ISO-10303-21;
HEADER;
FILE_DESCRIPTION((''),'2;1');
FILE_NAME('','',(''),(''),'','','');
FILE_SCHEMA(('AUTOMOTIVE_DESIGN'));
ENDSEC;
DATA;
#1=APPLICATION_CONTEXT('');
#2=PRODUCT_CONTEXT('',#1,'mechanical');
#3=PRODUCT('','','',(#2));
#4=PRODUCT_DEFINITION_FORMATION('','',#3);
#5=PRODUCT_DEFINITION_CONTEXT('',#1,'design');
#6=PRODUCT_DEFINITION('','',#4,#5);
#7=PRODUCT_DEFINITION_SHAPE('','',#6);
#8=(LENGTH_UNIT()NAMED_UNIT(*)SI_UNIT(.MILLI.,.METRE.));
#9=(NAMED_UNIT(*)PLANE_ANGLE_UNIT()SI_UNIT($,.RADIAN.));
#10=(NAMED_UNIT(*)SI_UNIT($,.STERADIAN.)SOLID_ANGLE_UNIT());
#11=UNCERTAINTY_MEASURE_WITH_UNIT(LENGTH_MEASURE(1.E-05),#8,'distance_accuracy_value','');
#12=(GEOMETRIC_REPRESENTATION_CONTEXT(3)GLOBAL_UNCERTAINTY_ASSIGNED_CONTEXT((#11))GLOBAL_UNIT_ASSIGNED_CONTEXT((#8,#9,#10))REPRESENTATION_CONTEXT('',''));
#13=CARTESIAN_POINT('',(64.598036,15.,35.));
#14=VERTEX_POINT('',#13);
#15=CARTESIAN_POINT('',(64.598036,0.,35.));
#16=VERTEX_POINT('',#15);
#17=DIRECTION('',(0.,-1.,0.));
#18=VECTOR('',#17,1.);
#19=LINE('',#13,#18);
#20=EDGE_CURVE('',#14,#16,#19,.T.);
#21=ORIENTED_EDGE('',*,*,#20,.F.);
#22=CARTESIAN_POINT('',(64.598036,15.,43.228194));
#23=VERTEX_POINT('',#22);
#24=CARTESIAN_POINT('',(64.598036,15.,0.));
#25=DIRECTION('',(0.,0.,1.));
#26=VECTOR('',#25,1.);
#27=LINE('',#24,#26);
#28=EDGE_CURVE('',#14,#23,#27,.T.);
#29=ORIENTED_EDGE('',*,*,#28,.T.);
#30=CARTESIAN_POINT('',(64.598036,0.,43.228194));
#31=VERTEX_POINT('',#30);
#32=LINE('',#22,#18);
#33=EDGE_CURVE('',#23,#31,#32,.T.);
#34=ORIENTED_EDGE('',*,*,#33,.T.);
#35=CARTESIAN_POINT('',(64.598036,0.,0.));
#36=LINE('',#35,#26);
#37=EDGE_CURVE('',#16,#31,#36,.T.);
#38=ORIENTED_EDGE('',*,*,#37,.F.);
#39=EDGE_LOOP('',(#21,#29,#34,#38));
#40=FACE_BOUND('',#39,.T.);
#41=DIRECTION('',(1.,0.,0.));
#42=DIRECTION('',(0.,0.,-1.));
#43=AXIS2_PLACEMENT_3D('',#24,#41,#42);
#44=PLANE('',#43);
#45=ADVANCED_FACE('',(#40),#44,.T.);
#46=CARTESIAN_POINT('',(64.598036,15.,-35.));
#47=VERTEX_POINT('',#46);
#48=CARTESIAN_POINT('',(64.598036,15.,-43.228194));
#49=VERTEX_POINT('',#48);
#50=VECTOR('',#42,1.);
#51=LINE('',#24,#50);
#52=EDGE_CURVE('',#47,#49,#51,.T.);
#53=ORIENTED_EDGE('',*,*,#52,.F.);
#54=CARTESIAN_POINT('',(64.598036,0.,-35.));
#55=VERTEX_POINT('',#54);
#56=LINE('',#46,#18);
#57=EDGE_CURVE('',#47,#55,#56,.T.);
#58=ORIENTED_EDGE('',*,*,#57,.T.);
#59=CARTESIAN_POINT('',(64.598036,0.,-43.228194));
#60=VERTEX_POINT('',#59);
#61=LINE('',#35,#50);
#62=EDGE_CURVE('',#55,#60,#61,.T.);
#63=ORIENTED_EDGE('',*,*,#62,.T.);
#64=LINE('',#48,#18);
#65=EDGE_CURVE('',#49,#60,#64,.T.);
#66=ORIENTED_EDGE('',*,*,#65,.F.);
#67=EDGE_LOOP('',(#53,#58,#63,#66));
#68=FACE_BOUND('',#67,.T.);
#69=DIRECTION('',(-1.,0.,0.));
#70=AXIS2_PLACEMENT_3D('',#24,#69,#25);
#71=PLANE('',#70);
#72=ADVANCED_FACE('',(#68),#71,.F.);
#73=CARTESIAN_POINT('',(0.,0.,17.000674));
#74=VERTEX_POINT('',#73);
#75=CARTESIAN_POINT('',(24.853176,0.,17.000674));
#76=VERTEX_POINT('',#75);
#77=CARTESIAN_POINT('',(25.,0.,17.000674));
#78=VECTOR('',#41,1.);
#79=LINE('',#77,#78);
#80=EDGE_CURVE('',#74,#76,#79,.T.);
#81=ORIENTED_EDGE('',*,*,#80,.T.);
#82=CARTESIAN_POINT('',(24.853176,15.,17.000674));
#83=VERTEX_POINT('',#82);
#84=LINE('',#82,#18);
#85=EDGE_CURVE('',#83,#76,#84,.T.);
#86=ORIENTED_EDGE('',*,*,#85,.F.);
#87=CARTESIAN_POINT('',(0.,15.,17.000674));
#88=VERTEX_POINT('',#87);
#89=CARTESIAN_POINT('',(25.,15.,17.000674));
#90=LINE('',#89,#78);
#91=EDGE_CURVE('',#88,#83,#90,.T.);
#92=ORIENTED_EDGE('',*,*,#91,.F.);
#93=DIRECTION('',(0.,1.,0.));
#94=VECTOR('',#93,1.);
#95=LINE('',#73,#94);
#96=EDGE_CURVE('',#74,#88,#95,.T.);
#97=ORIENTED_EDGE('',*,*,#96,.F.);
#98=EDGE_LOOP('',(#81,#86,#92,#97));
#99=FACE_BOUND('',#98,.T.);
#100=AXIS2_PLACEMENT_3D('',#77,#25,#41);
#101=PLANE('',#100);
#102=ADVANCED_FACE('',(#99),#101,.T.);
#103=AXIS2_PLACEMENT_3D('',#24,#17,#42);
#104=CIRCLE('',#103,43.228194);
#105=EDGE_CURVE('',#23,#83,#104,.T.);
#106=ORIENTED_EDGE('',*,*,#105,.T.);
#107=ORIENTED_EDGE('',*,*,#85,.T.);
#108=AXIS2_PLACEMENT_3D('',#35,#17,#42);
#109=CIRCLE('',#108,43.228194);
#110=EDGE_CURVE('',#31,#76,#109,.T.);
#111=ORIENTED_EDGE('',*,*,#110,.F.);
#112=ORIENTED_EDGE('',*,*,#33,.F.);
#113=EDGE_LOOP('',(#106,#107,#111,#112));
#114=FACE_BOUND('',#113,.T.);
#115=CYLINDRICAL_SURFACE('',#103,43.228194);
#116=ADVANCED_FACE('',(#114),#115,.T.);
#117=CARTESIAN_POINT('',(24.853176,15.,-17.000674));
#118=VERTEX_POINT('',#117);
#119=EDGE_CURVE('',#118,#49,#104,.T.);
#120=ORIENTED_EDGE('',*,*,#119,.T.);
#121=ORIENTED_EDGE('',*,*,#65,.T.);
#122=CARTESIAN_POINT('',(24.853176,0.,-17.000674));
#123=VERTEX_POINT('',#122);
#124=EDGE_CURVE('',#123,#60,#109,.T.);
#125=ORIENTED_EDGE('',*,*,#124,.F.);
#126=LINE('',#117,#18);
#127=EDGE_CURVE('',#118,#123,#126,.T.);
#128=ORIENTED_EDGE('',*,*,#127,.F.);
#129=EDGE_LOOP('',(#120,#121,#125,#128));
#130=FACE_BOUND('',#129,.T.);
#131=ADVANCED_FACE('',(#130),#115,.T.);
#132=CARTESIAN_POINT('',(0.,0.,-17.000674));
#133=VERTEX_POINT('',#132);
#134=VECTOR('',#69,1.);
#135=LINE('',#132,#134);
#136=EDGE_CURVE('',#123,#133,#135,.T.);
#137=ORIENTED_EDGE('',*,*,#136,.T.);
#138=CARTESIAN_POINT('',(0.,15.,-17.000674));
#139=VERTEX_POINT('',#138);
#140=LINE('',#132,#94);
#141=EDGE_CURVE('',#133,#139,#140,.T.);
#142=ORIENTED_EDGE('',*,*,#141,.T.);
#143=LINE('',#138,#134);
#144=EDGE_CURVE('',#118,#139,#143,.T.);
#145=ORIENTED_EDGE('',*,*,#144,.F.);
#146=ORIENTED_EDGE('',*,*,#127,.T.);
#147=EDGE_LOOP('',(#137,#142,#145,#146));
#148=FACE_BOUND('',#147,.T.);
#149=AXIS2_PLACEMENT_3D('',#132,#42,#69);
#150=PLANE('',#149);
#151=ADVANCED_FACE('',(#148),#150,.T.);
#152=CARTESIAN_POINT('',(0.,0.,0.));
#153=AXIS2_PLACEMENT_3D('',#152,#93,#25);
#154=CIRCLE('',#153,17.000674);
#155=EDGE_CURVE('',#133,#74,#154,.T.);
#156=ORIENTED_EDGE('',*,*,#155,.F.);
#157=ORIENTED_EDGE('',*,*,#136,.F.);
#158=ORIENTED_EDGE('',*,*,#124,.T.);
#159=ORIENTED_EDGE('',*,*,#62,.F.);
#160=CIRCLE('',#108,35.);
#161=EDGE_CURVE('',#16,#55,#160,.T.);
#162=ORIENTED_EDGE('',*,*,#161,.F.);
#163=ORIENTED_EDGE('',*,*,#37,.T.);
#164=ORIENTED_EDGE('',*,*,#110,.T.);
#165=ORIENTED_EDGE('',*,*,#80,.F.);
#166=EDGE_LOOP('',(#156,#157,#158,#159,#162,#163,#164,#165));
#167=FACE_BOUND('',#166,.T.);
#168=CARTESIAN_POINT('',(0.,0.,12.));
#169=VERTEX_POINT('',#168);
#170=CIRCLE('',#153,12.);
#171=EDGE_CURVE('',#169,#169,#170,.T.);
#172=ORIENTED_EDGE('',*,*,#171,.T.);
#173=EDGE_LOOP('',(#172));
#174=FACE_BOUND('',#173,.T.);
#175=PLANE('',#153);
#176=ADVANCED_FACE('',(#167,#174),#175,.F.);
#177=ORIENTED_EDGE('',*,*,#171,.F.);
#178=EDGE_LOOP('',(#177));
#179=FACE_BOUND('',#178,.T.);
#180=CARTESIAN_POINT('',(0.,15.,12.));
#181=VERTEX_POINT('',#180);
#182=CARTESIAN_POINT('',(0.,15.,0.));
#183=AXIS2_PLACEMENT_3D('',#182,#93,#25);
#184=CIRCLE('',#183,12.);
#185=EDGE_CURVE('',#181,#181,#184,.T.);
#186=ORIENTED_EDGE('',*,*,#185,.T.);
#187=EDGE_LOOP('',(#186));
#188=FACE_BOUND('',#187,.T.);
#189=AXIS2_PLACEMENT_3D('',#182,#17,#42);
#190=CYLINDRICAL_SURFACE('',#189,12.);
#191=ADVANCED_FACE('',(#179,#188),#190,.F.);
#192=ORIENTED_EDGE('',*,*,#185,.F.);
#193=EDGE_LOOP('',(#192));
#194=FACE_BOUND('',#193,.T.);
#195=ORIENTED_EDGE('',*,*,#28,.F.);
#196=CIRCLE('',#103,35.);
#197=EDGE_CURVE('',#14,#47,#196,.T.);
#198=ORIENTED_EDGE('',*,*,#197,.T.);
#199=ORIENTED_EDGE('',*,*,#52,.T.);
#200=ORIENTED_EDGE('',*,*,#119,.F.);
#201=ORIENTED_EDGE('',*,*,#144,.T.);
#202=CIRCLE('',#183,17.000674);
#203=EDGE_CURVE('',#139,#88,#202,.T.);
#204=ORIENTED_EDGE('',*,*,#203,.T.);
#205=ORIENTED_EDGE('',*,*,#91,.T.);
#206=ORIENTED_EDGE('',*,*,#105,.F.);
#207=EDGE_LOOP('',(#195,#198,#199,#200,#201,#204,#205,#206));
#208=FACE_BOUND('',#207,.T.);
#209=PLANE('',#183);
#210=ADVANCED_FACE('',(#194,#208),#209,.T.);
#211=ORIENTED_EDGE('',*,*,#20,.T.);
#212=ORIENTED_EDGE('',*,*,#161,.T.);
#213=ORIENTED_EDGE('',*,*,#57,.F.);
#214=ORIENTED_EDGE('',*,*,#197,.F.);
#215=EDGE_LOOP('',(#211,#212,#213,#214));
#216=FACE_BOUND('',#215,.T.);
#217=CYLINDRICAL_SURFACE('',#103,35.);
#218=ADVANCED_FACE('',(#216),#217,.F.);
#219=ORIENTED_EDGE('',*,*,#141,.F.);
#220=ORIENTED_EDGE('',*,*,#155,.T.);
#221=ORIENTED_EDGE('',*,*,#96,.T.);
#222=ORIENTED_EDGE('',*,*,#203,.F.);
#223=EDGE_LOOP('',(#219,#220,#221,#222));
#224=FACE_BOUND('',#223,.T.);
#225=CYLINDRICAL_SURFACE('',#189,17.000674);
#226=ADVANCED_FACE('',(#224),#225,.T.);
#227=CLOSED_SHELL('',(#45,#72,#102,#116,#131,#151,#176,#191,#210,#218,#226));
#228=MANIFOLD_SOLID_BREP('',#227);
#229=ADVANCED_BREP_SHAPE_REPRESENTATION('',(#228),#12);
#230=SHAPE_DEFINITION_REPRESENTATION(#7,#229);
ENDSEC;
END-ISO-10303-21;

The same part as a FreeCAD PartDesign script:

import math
import FreeCAD as App
import Part
import Sketcher

V = App.Vector
Q = App.Units.Quantity

doc = App.newDocument("Part")
body = doc.addObject("PartDesign::Body", "Body")

# Sketch on XZ plane
sketch1 = body.newObject("Sketcher::SketchObject", "Sketch")
sketch1.AttachmentSupport = (doc.getObject("XZ_Plane"), [""])
sketch1.MapMode = "FlatFace"
sketch1.addGeometry(Part.Circle(V(0, 0, 0), V(0, 0, 1), 17), False)
sketch1.addGeometry(Part.Circle(V(0, 0, 0), V(0, 0, 1), 12), False)
sketch1.addConstraint(Sketcher.Constraint("Coincident", 0, 3, -1, 1))
sketch1.addConstraint(Sketcher.Constraint("Coincident", 1, 3, -1, 1))
sketch1.addConstraint(Sketcher.Constraint("Diameter", 1, Q("24 mm")))
sketch1.addConstraint(Sketcher.Constraint("Diameter", 0, Q("34.001347 mm")))
pad1 = body.newObject("PartDesign::Pad", "Pad")
pad1.Profile = sketch1
pad1.Length = 15
pad1.Reversed = True

# Sketch on XZ plane
sketch2 = body.newObject("Sketcher::SketchObject", "Sketch001")
sketch2.AttachmentSupport = (doc.getObject("XZ_Plane"), [""])
sketch2.MapMode = "FlatFace"
sketch2.AttachmentOffset = App.Placement(V(0, 0, -15), App.Rotation())
sketch2.addGeometry(Part.LineSegment(V(25, -17, 0), V(0, -17, 0)), False)
sketch2.addGeometry(Part.ArcOfCircle(Part.Circle(V(0, 0, 0), V(0, 0, 1), 17), math.radians(-90), math.radians(90)), False)
sketch2.addGeometry(Part.LineSegment(V(0, 17, 0), V(25, 17, 0)), False)
sketch2.addGeometry(Part.LineSegment(V(25, 17, 0), V(25, -17, 0)), False)
sketch2.addConstraint(Sketcher.Constraint("Tangent", 0, 2, 1, 1))
sketch2.addConstraint(Sketcher.Constraint("Tangent", 1, 2, 2, 1))
sketch2.addConstraint(Sketcher.Constraint("Coincident", 2, 2, 3, 1))
sketch2.addConstraint(Sketcher.Constraint("Coincident", 3, 2, 0, 1))
sketch2.addConstraint(Sketcher.Constraint("Horizontal", 0))
sketch2.addConstraint(Sketcher.Constraint("Horizontal", 2))
sketch2.addConstraint(Sketcher.Constraint("Vertical", 3))
sketch2.addConstraint(Sketcher.Constraint("Coincident", 1, 3, -1, 1))
sketch2.addConstraint(Sketcher.Constraint("DistanceX", 0, 2, 0, 1, Q("25 mm")))
sketch2.addConstraint(Sketcher.Constraint("Radius", 1, Q("17.000674 mm")))
pad2 = body.newObject("PartDesign::Pad", "Pad001")
pad2.Profile = sketch2
pad2.Length = 15

# Sketch on XZ plane
sketch3 = body.newObject("Sketcher::SketchObject", "Sketch002")
sketch3.AttachmentSupport = (doc.getObject("XZ_Plane"), [""])
sketch3.MapMode = "FlatFace"
sketch3.addGeometry(Part.ArcOfCircle(Part.Circle(V(65, 0, 0), V(0, 0, 1), 35), math.radians(90), math.radians(180)), False)
sketch3.addGeometry(Part.LineSegment(V(65, 35, 0), V(65, 43, 0)), False)
sketch3.addGeometry(Part.ArcOfCircle(Part.Circle(V(65, 0, 0), V(0, 0, 1), 43), math.radians(90), math.radians(180)), False)
sketch3.addGeometry(Part.ArcOfCircle(Part.Circle(V(65, 0, 0), V(0, 0, 1), 43), math.radians(180), math.radians(270)), False)
sketch3.addGeometry(Part.LineSegment(V(65, -43, 0), V(65, -35, 0)), False)
sketch3.addGeometry(Part.ArcOfCircle(Part.Circle(V(65, 0, 0), V(0, 0, 1), 35), math.radians(180), math.radians(270)), False)
sketch3.addConstraint(Sketcher.Constraint("Coincident", 0, 1, 1, 1))
sketch3.addConstraint(Sketcher.Constraint("Coincident", 1, 2, 2, 1))
sketch3.addConstraint(Sketcher.Constraint("Tangent", 2, 2, 3, 1))
sketch3.addConstraint(Sketcher.Constraint("Coincident", 3, 2, 4, 1))
sketch3.addConstraint(Sketcher.Constraint("Coincident", 4, 2, 5, 2))
sketch3.addConstraint(Sketcher.Constraint("Tangent", 5, 1, 0, 2))
sketch3.addConstraint(Sketcher.Constraint("Vertical", 1))
sketch3.addConstraint(Sketcher.Constraint("Vertical", 4))
sketch3.addConstraint(Sketcher.Constraint("Coincident", 2, 3, 0, 3))
sketch3.addConstraint(Sketcher.Constraint("Equal", 2, 3))
sketch3.addConstraint(Sketcher.Constraint("Equal", 0, 5))
sketch3.addConstraint(Sketcher.Constraint("Symmetric", 1, 2, 3, 2, -1))
sketch3.addConstraint(Sketcher.Constraint("PointOnObject", 2, 2, -1))
sketch3.addConstraint(Sketcher.Constraint("PointOnObject", 5, 1, -1))
sketch3.addConstraint(Sketcher.Constraint("Vertical", 5, 3, 0, 1))
sketch3.addConstraint(Sketcher.Constraint("Radius", 0, Q("35 mm")))
sketch3.addConstraint(Sketcher.Constraint("Radius", 2, Q("43.228194 mm")))
sketch3.addConstraint(Sketcher.Constraint("DistanceX", -1, 1, 2, 2, Q("21.369842 mm")))
pad3 = body.newObject("PartDesign::Pad", "Pad002")
pad3.Profile = sketch3
pad3.Length = 15
pad3.Reversed = True

doc.recompute()
